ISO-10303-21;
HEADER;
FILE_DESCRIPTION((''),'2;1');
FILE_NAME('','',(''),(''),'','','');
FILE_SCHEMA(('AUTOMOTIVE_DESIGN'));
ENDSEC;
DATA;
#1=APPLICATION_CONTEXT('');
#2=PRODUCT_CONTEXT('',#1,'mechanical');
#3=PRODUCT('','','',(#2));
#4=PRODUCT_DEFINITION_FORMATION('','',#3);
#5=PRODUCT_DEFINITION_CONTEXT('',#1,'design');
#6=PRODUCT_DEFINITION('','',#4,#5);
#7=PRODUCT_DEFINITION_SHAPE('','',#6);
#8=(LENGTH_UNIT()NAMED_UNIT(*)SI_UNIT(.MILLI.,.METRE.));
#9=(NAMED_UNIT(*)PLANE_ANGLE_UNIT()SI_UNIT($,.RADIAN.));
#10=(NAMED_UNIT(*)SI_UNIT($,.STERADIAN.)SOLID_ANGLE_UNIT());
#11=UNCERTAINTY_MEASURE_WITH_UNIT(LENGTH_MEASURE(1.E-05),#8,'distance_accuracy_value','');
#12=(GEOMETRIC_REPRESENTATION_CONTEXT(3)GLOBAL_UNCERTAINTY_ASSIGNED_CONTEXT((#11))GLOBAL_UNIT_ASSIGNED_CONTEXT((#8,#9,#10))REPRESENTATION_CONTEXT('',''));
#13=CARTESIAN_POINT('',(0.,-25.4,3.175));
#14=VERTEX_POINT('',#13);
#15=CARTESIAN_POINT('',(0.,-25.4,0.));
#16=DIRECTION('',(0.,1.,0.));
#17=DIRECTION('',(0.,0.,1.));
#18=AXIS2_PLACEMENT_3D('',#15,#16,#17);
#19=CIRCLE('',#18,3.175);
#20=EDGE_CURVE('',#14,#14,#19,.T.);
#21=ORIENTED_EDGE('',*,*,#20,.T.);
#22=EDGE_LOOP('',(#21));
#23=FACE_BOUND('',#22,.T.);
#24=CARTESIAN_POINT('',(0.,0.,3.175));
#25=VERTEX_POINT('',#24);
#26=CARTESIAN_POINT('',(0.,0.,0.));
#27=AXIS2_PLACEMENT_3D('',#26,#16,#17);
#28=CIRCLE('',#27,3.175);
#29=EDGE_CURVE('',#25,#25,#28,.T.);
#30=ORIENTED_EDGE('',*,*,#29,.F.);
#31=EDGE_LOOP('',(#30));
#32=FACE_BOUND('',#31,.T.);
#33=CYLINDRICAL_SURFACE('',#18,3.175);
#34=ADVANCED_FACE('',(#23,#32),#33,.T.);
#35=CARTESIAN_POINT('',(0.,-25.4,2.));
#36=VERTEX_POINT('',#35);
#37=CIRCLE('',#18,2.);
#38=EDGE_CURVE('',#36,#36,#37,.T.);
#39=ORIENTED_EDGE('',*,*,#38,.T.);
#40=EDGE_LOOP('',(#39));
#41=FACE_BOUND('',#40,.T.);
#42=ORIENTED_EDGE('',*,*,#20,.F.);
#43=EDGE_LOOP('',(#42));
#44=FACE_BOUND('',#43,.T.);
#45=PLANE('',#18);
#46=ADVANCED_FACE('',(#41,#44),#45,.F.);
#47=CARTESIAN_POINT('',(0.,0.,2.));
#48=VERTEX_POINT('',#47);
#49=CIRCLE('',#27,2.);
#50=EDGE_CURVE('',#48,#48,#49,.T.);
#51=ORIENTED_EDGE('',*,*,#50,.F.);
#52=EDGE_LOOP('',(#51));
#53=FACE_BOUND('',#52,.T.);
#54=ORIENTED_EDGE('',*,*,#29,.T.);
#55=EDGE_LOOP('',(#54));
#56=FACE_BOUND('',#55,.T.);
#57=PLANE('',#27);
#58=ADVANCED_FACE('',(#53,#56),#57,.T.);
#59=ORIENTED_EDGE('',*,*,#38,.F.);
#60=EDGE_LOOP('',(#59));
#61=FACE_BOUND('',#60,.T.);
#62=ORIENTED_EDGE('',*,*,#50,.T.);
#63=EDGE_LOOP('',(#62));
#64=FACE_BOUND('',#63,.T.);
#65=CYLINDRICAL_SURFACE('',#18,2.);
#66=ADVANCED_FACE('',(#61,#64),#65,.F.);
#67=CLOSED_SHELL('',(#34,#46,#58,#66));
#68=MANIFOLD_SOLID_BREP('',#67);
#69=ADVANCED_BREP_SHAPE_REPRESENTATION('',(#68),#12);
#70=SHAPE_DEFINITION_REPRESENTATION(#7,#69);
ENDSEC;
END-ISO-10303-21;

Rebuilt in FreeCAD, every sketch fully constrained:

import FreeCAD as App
import Part
import Sketcher

V = App.Vector
Q = App.Units.Quantity

doc = App.newDocument("Part")
body = doc.addObject("PartDesign::Body", "Body")

sketch1 = body.newObject("Sketcher::SketchObject", "Sketch")
sketch1.AttachmentSupport = (doc.getObject("XZ_Plane"), [""])
sketch1.MapMode = "FlatFace"
sketch1.addGeometry([
    Part.Circle(V(0, 0, 0), V(0, 0, 1), 3.175),
    Part.Circle(V(0, 0, 0), V(0, 0, 1), 2),
], False)
sketch1.addConstraint([
    Sketcher.Constraint("Coincident", 0, 3, -1, 1),
    Sketcher.Constraint("Coincident", 1, 3, -1, 1),
    Sketcher.Constraint("Diameter", 0, Q("0.25 in")),
    Sketcher.Constraint("Diameter", 1, 4.0),
])
pad1 = body.newObject("PartDesign::Pad", "Pad")
pad1.Profile = sketch1
pad1.Length = Q("1 in")

doc.recompute()
